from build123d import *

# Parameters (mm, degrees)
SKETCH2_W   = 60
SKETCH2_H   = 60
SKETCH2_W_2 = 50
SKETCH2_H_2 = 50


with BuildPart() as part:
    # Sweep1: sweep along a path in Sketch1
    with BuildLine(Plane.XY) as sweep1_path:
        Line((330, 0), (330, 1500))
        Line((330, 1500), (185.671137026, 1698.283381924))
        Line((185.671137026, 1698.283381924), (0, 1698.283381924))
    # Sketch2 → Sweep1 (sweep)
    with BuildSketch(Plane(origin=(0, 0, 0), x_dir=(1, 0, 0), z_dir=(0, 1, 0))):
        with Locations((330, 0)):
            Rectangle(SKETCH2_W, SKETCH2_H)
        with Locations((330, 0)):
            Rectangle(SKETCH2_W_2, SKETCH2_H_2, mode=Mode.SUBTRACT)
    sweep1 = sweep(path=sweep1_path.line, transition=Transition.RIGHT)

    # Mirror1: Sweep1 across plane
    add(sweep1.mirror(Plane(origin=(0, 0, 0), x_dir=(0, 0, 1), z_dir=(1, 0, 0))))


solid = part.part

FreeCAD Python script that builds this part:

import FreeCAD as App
import Part
import Sketcher


def add_polygon(sketch, points):
    """Adds a closed chain of lines whose ends are joined by coincident constraints."""
    first, n = sketch.GeometryCount, len(points)
    for a, b in zip(points, points[1:] + points[:1]):
        sketch.addGeometry(Part.LineSegment(App.Vector(*a, 0), App.Vector(*b, 0)), False)
    for i in range(n):
        sketch.addConstraint(Sketcher.Constraint("Coincident", first + i, 2, first + (i + 1) % n, 1))

doc = App.newDocument("Part")
body = doc.addObject("PartDesign::Body", "Body")

sketch1 = body.newObject("Sketcher::SketchObject", "Sketch")
sketch1.AttachmentSupport = (doc.getObject("XZ_Plane"), [""])
sketch1.MapMode = "FlatFace"
add_polygon(sketch1, [(300, -30), (300, 30), (360, 30), (360, -30)])
add_polygon(sketch1, [(355, 25), (305, 25), (305, -25), (355, -25)])
sketch1.addConstraint([
    Sketcher.Constraint("Vertical", 0),
    Sketcher.Constraint("Horizontal", 1),
    Sketcher.Constraint("Vertical", 2),
    Sketcher.Constraint("Horizontal", 3),
    Sketcher.Constraint("Horizontal", 4),
    Sketcher.Constraint("Vertical", 5),
    Sketcher.Constraint("Horizontal", 6),
    Sketcher.Constraint("Vertical", 7),
    Sketcher.Constraint("Equal", 3, 0),
    Sketcher.Constraint("Equal", 6, 5),
    Sketcher.Constraint("DistanceX", 1, 1, 1, 2, 60.0),
    Sketcher.Constraint("DistanceX", 4, 2, 4, 1, 50.0),
    Sketcher.Constraint("DistanceX", -1, 1, 0, 2, 300.0),
    Sketcher.Constraint("DistanceY", -1, 1, 0, 2, 30.0),
    Sketcher.Constraint("DistanceX", -1, 1, 4, 2, 305.0),
    Sketcher.Constraint("DistanceY", -1, 1, 4, 2, 25.0),
])

sketch2 = body.newObject("Sketcher::SketchObject", "Sketch001")
sketch2.AttachmentSupport = (doc.getObject("XY_Plane"), [""])
sketch2.MapMode = "FlatFace"
sketch2.addGeometry([
    Part.LineSegment(App.Vector(330, 0, 0), App.Vector(330, 1500, 0)),
    Part.LineSegment(App.Vector(330, 1500, 0), App.Vector(185.671137, 1698.283382, 0)),
    Part.LineSegment(App.Vector(185.671137, 1698.283382, 0), App.Vector(0, 1698.283382, 0)),
], False)
sketch2.addConstraint([
    Sketcher.Constraint("Coincident", 0, 2, 1, 1),
    Sketcher.Constraint("Coincident", 1, 2, 2, 1),
    Sketcher.Constraint("Vertical", 0),
    Sketcher.Constraint("Horizontal", 2),
    Sketcher.Constraint("PointOnObject", 0, 1, -1),
    Sketcher.Constraint("PointOnObject", 2, 2, -2),
    Sketcher.Constraint("DistanceY", 0, 1, 0, 2, 1500.0),
    Sketcher.Constraint("DistanceX", -1, 1, 0, 1, 330.0),
    Sketcher.Constraint("Distance", 1, 245.249098),
    Sketcher.Constraint("DistanceX", 2, 2, 2, 1, 185.671137),
])
doc.recompute()

additivepipe = body.newObject("PartDesign::AdditivePipe", "AdditivePipe")
additivepipe.Profile = sketch1
additivepipe.Spine = (sketch2, ["Edge1", "Edge2", "Edge3"])
additivepipe.Transition = "Right corner"
doc.recompute()

mirrored = body.newObject("PartDesign::Mirrored", "Mirrored")
mirrored.Originals = [additivepipe]
mirrored.MirrorPlane = (doc.getObject("YZ_Plane"), [""])
body.Tip = mirrored

doc.recompute()
